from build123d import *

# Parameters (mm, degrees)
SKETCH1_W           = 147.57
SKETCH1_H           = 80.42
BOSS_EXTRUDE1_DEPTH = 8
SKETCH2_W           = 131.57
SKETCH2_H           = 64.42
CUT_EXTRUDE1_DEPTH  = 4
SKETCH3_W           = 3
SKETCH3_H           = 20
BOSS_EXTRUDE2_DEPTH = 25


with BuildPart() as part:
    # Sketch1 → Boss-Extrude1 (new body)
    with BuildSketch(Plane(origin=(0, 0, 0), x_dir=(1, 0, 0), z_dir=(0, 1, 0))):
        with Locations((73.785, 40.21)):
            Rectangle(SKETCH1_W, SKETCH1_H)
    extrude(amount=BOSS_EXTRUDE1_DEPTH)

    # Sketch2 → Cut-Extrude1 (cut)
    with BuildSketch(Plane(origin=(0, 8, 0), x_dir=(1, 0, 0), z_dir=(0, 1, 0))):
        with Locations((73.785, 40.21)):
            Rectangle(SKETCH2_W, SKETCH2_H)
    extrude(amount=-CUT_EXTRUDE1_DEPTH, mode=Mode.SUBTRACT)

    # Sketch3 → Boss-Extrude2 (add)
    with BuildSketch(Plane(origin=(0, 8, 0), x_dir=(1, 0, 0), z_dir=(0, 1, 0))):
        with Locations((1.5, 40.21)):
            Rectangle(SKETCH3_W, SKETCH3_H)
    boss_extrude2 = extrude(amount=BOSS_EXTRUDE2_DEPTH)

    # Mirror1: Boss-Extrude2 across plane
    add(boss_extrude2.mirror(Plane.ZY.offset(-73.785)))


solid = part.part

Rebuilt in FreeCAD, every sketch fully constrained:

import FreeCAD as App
import Part
import Sketcher
from FreeCAD import Vector

doc = App.newDocument("Part")
body = doc.addObject("PartDesign::Body", "Body")

# Sketch on XZ plane
sketch1 = doc.addObject("Sketcher::SketchObject", "Sketch")
body.addObject(sketch1)
sketch1.AttachmentSupport = (doc.XZ_Plane, [""])
sketch1.MapMode = "FlatFace"
sketch1.addGeometry([
    Part.LineSegment(Vector(0, -80.42, 0), Vector(0, 0, 0)),
    Part.LineSegment(Vector(0, 0, 0), Vector(147.57, 0, 0)),
    Part.LineSegment(Vector(147.57, 0, 0), Vector(147.57, -80.42, 0)),
    Part.LineSegment(Vector(147.57, -80.42, 0), Vector(0, -80.42, 0)),
], False)
sketch1.addConstraint([
    Sketcher.Constraint("Coincident", 0, 2, 1, 1),
    Sketcher.Constraint("Coincident", 1, 2, 2, 1),
    Sketcher.Constraint("Coincident", 2, 2, 3, 1),
    Sketcher.Constraint("Coincident", 3, 2, 0, 1),
    Sketcher.Constraint("Vertical", 0),
    Sketcher.Constraint("Horizontal", 1),
    Sketcher.Constraint("Vertical", 2),
    Sketcher.Constraint("Horizontal", 3),
    Sketcher.Constraint("Coincident", 0, 2, -1, 1),
    Sketcher.Constraint("DistanceX", 1, 1, 1, 2, 147.57),
    Sketcher.Constraint("DistanceY", 0, 1, 0, 2, 80.42),
])
pad1 = doc.addObject("PartDesign::Pad", "Pad")
body.addObject(pad1)
pad1.Profile = sketch1
pad1.Length = 8
pad1.Reversed = True

# Sketch on XZ plane
sketch2 = doc.addObject("Sketcher::SketchObject", "Sketch001")
body.addObject(sketch2)
sketch2.AttachmentSupport = (doc.XZ_Plane, [""])
sketch2.MapMode = "FlatFace"
sketch2.AttachmentOffset = App.Placement(Vector(0, 0, -8), App.Rotation())
sketch2.addGeometry([
    Part.LineSegment(Vector(8, -72.42, 0), Vector(8, -8, 0)),
    Part.LineSegment(Vector(8, -8, 0), Vector(139.57, -8, 0)),
    Part.LineSegment(Vector(139.57, -8, 0), Vector(139.57, -72.42, 0)),
    Part.LineSegment(Vector(139.57, -72.42, 0), Vector(8, -72.42, 0)),
], False)
sketch2.addConstraint([
    Sketcher.Constraint("Coincident", 0, 2, 1, 1),
    Sketcher.Constraint("Coincident", 1, 2, 2, 1),
    Sketcher.Constraint("Coincident", 2, 2, 3, 1),
    Sketcher.Constraint("Coincident", 3, 2, 0, 1),
    Sketcher.Constraint("Vertical", 0),
    Sketcher.Constraint("Horizontal", 1),
    Sketcher.Constraint("Vertical", 2),
    Sketcher.Constraint("Horizontal", 3),
    Sketcher.Constraint("DistanceX", -1, 1, 0, 2, 8.0),
    Sketcher.Constraint("DistanceY", 0, 2, -1, 1, 8.0),
    Sketcher.Constraint("DistanceX", 1, 1, 1, 2, 131.57),
    Sketcher.Constraint("DistanceY", 0, 1, 0, 2, 64.42),
])
pocket1 = doc.addObject("PartDesign::Pocket", "Pocket")
body.addObject(pocket1)
pocket1.Profile = sketch2
pocket1.Length = 4
pocket1.Reversed = True

# Sketch on XZ plane
sketch3 = doc.addObject("Sketcher::SketchObject", "Sketch002")
body.addObject(sketch3)
sketch3.AttachmentSupport = (doc.XZ_Plane, [""])
sketch3.MapMode = "FlatFace"
sketch3.AttachmentOffset = App.Placement(Vector(0, 0, -8), App.Rotation())
sketch3.addGeometry([
    Part.LineSegment(Vector(0, -50.21, 0), Vector(0, -30.21, 0)),
    Part.LineSegment(Vector(0, -30.21, 0), Vector(3, -30.21, 0)),
    Part.LineSegment(Vector(3, -30.21, 0), Vector(3, -50.21, 0)),
    Part.LineSegment(Vector(3, -50.21, 0), Vector(0, -50.21, 0)),
], False)
sketch3.addConstraint([
    Sketcher.Constraint("Coincident", 0, 2, 1, 1),
    Sketcher.Constraint("Coincident", 1, 2, 2, 1),
    Sketcher.Constraint("Coincident", 2, 2, 3, 1),
    Sketcher.Constraint("Coincident", 3, 2, 0, 1),
    Sketcher.Constraint("Vertical", 0),
    Sketcher.Constraint("Horizontal", 1),
    Sketcher.Constraint("Vertical", 2),
    Sketcher.Constraint("Horizontal", 3),
    Sketcher.Constraint("PointOnObject", 0, 2, -2),
    Sketcher.Constraint("DistanceX", 1, 1, 1, 2, 3.0),
    Sketcher.Constraint("DistanceY", 0, 1, 0, 2, 20.0),
    Sketcher.Constraint("DistanceY", 0, 2, -1, 1, 30.21),
])
pad2 = doc.addObject("PartDesign::Pad", "Pad001")
body.addObject(pad2)
pad2.Profile = sketch3
pad2.Length = 25
pad2.Reversed = True
doc.recompute()

datumplane = doc.addObject("PartDesign::Plane", "DatumPlane")
body.addObject(datumplane)
datumplane.AttachmentSupport = (doc.YZ_Plane, [""])
datumplane.MapMode = "FlatFace"
datumplane.AttachmentOffset = App.Placement(Vector(0, 0, 73.785), App.Rotation())
mirrored = doc.addObject("PartDesign::Mirrored", "Mirrored")
body.addObject(mirrored)
mirrored.Originals = [pad2]
mirrored.MirrorPlane = (datumplane, [""])
body.Tip = mirrored

doc.recompute()
